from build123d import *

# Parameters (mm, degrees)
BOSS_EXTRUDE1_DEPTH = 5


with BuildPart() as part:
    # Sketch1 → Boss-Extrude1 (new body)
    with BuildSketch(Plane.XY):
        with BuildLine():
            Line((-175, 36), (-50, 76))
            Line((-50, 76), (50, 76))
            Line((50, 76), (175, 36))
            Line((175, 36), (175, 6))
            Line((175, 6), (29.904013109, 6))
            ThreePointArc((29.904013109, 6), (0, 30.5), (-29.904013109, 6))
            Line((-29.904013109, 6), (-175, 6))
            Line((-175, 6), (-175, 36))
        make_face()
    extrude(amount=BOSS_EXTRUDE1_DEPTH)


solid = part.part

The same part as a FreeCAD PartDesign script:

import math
import FreeCAD as App
import Part
import Sketcher
from FreeCAD import Vector
Q = App.Units.Quantity

doc = App.newDocument("Part")
params = doc.addObject("Spreadsheet::Sheet", "Params")
for row, (alias, value) in enumerate([
    ("sketch1_radius", "30.5 mm"),
    ("sketch1_width", "100 mm"),
    ("sketch1_height", "30 mm"),
    ("pad1_length", "5 mm"),
], start=1):
    params.set(f"A{row}", alias)
    params.set(f"B{row}", "=" + value)
    params.setAlias(f"B{row}", alias)

body = doc.addObject("PartDesign::Body", "Body")

# Sketch on XY plane
sketch1 = doc.addObject("Sketcher::SketchObject", "Sketch")
body.addObject(sketch1)
sketch1.AttachmentSupport = (doc.XY_Plane, [""])
sketch1.MapMode = "FlatFace"
sketch1.addGeometry([
    Part.LineSegment(Vector(-50, 76, 0), Vector(-175, 36, 0)),  # 0
    Part.LineSegment(Vector(-175, 36, 0), Vector(-175, 6, 0)),  # 1
    Part.LineSegment(Vector(-175, 6, 0), Vector(-30, 6, 0)),  # 2
    Part.ArcOfCircle(Part.Circle(Vector(0, 0, 0), Vector(0, 0, 1), 30), math.radians(11), math.radians(169)),  # 3
    Part.LineSegment(Vector(30, 6, 0), Vector(175, 6, 0)),  # 4
    Part.LineSegment(Vector(175, 6, 0), Vector(175, 36, 0)),  # 5
    Part.LineSegment(Vector(175, 36, 0), Vector(50, 76, 0)),  # 6
    Part.LineSegment(Vector(50, 76, 0), Vector(-50, 76, 0)),  # 7
], False)
sketch1.addConstraint([
    Sketcher.Constraint("Coincident", 0, 2, 1, 1),
    Sketcher.Constraint("Coincident", 1, 2, 2, 1),
    Sketcher.Constraint("Coincident", 2, 2, 3, 2),
    Sketcher.Constraint("Coincident", 3, 1, 4, 1),
    Sketcher.Constraint("Coincident", 4, 2, 5, 1),
    Sketcher.Constraint("Coincident", 5, 2, 6, 1),
    Sketcher.Constraint("Coincident", 6, 2, 7, 1),
    Sketcher.Constraint("Coincident", 7, 2, 0, 1),
    Sketcher.Constraint("Vertical", 1),
    Sketcher.Constraint("Horizontal", 2),
    Sketcher.Constraint("Horizontal", 4),
    Sketcher.Constraint("Vertical", 5),
    Sketcher.Constraint("Horizontal", 7),
    Sketcher.Constraint("Coincident", 3, 3, -1, 1),
    Sketcher.Constraint("Symmetric", 1, 2, 4, 2, -2),
    Sketcher.Constraint("Horizontal", 0, 2, 5, 2),
    Sketcher.Constraint("Equal", 0, 6),
    Sketcher.Constraint("Radius", 3, Q("30.5 mm")),
    Sketcher.Constraint("DistanceX", 7, 2, 7, 1, Q("100 mm")),
    Sketcher.Constraint("DistanceY", 1, 2, 1, 1, Q("30 mm")),
    Sketcher.Constraint("DistanceX", 0, 2, -1, 1, Q("175 mm")),
    Sketcher.Constraint("DistanceY", -1, 1, 0, 2, Q("36 mm")),
    Sketcher.Constraint("DistanceY", -1, 1, 6, 2, Q("76 mm")),
])
sketch1.setExpression("Constraints[17]", "Params.sketch1_radius")
sketch1.setExpression("Constraints[18]", "Params.sketch1_width")
sketch1.setExpression("Constraints[19]", "Params.sketch1_height")
pad1 = doc.addObject("PartDesign::Pad", "Pad")
body.addObject(pad1)
pad1.Profile = sketch1
pad1.setExpression("Length", "Params.pad1_length")

doc.recompute()
